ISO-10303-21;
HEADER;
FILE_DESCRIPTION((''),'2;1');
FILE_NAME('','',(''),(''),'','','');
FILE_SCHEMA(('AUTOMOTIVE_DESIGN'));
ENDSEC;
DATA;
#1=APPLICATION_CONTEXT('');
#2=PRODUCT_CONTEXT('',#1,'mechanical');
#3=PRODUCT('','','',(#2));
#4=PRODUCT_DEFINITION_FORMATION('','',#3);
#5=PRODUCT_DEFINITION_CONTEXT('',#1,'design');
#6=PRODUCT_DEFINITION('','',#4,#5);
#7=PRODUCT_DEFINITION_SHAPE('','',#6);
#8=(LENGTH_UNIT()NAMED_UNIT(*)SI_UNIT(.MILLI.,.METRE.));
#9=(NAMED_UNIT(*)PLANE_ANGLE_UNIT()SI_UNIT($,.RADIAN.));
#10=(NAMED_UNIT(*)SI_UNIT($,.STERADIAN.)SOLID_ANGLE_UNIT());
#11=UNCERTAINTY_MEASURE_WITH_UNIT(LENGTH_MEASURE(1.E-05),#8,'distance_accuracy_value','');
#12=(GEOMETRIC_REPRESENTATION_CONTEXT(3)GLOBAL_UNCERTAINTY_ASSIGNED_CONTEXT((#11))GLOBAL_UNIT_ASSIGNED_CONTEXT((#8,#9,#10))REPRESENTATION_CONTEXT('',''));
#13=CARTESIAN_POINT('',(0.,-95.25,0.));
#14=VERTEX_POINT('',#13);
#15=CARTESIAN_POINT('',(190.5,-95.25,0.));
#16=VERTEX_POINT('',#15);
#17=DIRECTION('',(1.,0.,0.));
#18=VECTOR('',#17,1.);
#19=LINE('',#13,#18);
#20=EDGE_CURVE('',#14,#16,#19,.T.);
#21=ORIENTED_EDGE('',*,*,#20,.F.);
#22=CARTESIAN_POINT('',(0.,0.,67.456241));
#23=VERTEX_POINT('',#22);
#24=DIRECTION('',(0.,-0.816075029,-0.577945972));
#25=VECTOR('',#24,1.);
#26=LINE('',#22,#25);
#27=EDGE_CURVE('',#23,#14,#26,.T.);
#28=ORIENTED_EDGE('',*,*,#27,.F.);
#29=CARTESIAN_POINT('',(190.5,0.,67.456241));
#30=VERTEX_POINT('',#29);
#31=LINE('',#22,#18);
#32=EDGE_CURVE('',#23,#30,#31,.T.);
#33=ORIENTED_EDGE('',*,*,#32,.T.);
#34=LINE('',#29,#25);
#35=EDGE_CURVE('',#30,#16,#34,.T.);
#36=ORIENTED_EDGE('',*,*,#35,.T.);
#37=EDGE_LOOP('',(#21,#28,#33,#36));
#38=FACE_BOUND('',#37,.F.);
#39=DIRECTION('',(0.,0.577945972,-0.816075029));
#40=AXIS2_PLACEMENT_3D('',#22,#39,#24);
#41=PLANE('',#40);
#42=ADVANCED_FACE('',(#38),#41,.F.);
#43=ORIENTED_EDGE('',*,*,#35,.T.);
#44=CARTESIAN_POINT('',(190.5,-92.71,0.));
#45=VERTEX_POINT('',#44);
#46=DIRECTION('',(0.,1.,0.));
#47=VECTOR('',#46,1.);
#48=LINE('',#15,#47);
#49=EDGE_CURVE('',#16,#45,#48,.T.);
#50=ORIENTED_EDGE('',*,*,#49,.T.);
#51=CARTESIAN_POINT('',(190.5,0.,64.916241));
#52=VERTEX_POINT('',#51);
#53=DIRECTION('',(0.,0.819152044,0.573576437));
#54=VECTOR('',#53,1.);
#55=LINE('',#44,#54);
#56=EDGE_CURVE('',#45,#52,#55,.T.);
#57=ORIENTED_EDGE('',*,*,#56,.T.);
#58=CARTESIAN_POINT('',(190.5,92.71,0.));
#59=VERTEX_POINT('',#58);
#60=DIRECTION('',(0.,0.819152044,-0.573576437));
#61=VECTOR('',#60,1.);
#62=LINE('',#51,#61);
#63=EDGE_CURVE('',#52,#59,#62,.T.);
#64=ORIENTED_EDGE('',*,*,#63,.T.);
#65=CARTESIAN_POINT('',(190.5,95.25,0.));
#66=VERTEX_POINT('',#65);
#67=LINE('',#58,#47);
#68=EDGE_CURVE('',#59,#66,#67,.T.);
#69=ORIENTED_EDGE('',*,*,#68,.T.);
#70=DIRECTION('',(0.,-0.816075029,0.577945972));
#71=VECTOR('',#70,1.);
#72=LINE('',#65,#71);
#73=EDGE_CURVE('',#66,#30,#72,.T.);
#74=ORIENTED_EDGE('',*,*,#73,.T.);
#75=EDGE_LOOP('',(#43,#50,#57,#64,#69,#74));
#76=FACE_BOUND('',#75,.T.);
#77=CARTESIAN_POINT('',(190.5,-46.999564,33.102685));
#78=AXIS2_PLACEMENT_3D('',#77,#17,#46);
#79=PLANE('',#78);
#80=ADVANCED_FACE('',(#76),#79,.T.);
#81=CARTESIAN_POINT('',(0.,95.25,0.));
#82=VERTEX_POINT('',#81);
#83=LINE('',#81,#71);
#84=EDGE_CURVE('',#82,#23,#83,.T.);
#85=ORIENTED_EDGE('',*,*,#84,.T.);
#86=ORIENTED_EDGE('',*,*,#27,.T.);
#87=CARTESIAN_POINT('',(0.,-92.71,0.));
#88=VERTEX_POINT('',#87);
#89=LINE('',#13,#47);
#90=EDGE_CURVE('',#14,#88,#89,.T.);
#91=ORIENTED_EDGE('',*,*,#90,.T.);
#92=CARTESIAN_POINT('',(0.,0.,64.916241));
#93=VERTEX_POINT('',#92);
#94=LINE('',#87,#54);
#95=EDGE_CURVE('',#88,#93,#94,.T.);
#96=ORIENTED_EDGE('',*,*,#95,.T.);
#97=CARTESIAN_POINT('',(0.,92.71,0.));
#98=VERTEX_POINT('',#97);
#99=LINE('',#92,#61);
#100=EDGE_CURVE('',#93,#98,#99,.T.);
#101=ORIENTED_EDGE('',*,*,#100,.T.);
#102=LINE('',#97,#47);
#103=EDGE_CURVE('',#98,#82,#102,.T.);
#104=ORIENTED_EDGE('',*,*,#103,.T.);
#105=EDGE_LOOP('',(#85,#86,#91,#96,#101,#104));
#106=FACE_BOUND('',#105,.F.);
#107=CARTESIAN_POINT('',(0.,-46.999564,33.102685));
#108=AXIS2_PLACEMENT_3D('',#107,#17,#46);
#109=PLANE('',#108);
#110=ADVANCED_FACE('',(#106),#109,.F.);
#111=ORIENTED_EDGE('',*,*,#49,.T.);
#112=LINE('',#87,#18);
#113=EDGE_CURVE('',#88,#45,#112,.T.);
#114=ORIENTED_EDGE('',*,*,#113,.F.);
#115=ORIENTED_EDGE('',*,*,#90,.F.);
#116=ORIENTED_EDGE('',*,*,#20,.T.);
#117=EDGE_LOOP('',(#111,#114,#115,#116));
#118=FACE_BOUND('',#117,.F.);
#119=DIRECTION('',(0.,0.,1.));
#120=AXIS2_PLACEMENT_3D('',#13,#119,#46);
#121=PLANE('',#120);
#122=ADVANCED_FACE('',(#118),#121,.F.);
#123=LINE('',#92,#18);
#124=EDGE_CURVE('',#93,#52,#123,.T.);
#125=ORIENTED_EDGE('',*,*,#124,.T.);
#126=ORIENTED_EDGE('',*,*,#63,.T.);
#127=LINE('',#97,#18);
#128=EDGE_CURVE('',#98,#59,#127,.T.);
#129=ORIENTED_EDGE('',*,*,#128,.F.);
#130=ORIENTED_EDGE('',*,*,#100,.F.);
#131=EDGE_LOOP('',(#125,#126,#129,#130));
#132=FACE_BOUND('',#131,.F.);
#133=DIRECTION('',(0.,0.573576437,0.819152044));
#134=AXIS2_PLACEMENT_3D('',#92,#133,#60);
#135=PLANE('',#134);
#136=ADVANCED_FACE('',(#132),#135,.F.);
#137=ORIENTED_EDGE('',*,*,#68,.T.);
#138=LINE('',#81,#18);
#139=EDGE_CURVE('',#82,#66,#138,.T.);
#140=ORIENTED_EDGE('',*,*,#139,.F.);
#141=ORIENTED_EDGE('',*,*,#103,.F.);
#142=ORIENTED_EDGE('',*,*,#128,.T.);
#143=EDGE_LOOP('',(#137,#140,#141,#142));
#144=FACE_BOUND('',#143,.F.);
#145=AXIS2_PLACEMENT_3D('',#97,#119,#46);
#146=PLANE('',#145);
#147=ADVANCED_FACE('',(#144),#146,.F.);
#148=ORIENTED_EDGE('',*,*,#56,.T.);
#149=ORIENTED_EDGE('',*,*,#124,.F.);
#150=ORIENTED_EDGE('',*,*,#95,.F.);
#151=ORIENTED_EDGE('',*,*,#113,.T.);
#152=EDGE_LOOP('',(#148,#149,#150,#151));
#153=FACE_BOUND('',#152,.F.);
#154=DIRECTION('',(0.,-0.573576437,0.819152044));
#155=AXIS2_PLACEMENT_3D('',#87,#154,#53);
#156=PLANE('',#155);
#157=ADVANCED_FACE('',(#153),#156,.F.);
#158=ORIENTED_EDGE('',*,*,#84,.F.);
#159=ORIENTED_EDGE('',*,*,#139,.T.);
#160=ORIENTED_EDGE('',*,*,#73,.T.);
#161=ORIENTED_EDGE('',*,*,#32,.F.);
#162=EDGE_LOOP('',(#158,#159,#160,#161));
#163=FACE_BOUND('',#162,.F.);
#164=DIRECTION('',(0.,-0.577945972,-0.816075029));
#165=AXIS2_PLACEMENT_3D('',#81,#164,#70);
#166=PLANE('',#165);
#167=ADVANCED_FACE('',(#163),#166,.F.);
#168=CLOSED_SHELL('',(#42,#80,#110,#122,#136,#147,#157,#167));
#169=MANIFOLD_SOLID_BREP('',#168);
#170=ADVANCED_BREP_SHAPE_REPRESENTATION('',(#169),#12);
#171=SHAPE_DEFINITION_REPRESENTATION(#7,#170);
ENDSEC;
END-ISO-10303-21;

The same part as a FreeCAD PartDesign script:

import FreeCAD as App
import Part
import Sketcher
Q = App.Units.Quantity

doc = App.newDocument("Part")
params = doc.addObject("Spreadsheet::Sheet", "Params")
for row, (alias, value) in enumerate([
    ("sketch1_width", "0.1 in"),
    ("pad1_length", "7.5 in"),
], start=1):
    params.set(f"A{row}", alias)
    params.set(f"B{row}", "=" + value)
    params.setAlias(f"B{row}", alias)

body = doc.addObject("PartDesign::Body", "Body")

# Sketch on YZ plane
sketch1 = body.newObject("Sketcher::SketchObject", "Sketch")
sketch1.AttachmentSupport = (doc.getObject("YZ_Plane"), [""])
sketch1.MapMode = "FlatFace"
sketch1.addGeometry([
    Part.LineSegment(App.Vector(0, 67.5, 0), App.Vector(-95.2, 0, 0)),  # 0
    Part.LineSegment(App.Vector(-95.2, 0, 0), App.Vector(-92.7, 0, 0)),  # 1
    Part.LineSegment(App.Vector(-92.7, 0, 0), App.Vector(0, 64.9, 0)),  # 2
    Part.LineSegment(App.Vector(0, 64.9, 0), App.Vector(92.7, 0, 0)),  # 3
    Part.LineSegment(App.Vector(92.7, 0, 0), App.Vector(95.2, 0, 0)),  # 4
    Part.LineSegment(App.Vector(95.2, 0, 0), App.Vector(0, 67.5, 0)),  # 5
], False)
sketch1.addConstraint([
    Sketcher.Constraint("Coincident", 0, 2, 1, 1),
    Sketcher.Constraint("Coincident", 1, 2, 2, 1),
    Sketcher.Constraint("Coincident", 2, 2, 3, 1),
    Sketcher.Constraint("Coincident", 3, 2, 4, 1),
    Sketcher.Constraint("Coincident", 4, 2, 5, 1),
    Sketcher.Constraint("Coincident", 5, 2, 0, 1),
    Sketcher.Constraint("Horizontal", 1),
    Sketcher.Constraint("Horizontal", 4),
    Sketcher.Constraint("Symmetric", 1, 2, 3, 2, -1, 1),
    Sketcher.Constraint("Symmetric", 0, 2, 4, 2, -2),
    Sketcher.Constraint("PointOnObject", 2, 2, -2),
    Sketcher.Constraint("PointOnObject", 5, 2, -2),
    Sketcher.Constraint("DistanceX", 1, 1, 1, 2, Q("0.1 in")),
    Sketcher.Constraint("Angle", 2, Q("35 deg")),
    Sketcher.Constraint("DistanceX", 1, 2, 3, 2, Q("7.3 in")),
    Sketcher.Constraint("DistanceY", 2, 2, 5, 2, Q("0.1 in")),
])
sketch1.setExpression("Constraints[12]", "Params.sketch1_width")
pad1 = body.newObject("PartDesign::Pad", "Pad")
pad1.Profile = sketch1
pad1.setExpression("Length", "Params.pad1_length")

doc.recompute()
